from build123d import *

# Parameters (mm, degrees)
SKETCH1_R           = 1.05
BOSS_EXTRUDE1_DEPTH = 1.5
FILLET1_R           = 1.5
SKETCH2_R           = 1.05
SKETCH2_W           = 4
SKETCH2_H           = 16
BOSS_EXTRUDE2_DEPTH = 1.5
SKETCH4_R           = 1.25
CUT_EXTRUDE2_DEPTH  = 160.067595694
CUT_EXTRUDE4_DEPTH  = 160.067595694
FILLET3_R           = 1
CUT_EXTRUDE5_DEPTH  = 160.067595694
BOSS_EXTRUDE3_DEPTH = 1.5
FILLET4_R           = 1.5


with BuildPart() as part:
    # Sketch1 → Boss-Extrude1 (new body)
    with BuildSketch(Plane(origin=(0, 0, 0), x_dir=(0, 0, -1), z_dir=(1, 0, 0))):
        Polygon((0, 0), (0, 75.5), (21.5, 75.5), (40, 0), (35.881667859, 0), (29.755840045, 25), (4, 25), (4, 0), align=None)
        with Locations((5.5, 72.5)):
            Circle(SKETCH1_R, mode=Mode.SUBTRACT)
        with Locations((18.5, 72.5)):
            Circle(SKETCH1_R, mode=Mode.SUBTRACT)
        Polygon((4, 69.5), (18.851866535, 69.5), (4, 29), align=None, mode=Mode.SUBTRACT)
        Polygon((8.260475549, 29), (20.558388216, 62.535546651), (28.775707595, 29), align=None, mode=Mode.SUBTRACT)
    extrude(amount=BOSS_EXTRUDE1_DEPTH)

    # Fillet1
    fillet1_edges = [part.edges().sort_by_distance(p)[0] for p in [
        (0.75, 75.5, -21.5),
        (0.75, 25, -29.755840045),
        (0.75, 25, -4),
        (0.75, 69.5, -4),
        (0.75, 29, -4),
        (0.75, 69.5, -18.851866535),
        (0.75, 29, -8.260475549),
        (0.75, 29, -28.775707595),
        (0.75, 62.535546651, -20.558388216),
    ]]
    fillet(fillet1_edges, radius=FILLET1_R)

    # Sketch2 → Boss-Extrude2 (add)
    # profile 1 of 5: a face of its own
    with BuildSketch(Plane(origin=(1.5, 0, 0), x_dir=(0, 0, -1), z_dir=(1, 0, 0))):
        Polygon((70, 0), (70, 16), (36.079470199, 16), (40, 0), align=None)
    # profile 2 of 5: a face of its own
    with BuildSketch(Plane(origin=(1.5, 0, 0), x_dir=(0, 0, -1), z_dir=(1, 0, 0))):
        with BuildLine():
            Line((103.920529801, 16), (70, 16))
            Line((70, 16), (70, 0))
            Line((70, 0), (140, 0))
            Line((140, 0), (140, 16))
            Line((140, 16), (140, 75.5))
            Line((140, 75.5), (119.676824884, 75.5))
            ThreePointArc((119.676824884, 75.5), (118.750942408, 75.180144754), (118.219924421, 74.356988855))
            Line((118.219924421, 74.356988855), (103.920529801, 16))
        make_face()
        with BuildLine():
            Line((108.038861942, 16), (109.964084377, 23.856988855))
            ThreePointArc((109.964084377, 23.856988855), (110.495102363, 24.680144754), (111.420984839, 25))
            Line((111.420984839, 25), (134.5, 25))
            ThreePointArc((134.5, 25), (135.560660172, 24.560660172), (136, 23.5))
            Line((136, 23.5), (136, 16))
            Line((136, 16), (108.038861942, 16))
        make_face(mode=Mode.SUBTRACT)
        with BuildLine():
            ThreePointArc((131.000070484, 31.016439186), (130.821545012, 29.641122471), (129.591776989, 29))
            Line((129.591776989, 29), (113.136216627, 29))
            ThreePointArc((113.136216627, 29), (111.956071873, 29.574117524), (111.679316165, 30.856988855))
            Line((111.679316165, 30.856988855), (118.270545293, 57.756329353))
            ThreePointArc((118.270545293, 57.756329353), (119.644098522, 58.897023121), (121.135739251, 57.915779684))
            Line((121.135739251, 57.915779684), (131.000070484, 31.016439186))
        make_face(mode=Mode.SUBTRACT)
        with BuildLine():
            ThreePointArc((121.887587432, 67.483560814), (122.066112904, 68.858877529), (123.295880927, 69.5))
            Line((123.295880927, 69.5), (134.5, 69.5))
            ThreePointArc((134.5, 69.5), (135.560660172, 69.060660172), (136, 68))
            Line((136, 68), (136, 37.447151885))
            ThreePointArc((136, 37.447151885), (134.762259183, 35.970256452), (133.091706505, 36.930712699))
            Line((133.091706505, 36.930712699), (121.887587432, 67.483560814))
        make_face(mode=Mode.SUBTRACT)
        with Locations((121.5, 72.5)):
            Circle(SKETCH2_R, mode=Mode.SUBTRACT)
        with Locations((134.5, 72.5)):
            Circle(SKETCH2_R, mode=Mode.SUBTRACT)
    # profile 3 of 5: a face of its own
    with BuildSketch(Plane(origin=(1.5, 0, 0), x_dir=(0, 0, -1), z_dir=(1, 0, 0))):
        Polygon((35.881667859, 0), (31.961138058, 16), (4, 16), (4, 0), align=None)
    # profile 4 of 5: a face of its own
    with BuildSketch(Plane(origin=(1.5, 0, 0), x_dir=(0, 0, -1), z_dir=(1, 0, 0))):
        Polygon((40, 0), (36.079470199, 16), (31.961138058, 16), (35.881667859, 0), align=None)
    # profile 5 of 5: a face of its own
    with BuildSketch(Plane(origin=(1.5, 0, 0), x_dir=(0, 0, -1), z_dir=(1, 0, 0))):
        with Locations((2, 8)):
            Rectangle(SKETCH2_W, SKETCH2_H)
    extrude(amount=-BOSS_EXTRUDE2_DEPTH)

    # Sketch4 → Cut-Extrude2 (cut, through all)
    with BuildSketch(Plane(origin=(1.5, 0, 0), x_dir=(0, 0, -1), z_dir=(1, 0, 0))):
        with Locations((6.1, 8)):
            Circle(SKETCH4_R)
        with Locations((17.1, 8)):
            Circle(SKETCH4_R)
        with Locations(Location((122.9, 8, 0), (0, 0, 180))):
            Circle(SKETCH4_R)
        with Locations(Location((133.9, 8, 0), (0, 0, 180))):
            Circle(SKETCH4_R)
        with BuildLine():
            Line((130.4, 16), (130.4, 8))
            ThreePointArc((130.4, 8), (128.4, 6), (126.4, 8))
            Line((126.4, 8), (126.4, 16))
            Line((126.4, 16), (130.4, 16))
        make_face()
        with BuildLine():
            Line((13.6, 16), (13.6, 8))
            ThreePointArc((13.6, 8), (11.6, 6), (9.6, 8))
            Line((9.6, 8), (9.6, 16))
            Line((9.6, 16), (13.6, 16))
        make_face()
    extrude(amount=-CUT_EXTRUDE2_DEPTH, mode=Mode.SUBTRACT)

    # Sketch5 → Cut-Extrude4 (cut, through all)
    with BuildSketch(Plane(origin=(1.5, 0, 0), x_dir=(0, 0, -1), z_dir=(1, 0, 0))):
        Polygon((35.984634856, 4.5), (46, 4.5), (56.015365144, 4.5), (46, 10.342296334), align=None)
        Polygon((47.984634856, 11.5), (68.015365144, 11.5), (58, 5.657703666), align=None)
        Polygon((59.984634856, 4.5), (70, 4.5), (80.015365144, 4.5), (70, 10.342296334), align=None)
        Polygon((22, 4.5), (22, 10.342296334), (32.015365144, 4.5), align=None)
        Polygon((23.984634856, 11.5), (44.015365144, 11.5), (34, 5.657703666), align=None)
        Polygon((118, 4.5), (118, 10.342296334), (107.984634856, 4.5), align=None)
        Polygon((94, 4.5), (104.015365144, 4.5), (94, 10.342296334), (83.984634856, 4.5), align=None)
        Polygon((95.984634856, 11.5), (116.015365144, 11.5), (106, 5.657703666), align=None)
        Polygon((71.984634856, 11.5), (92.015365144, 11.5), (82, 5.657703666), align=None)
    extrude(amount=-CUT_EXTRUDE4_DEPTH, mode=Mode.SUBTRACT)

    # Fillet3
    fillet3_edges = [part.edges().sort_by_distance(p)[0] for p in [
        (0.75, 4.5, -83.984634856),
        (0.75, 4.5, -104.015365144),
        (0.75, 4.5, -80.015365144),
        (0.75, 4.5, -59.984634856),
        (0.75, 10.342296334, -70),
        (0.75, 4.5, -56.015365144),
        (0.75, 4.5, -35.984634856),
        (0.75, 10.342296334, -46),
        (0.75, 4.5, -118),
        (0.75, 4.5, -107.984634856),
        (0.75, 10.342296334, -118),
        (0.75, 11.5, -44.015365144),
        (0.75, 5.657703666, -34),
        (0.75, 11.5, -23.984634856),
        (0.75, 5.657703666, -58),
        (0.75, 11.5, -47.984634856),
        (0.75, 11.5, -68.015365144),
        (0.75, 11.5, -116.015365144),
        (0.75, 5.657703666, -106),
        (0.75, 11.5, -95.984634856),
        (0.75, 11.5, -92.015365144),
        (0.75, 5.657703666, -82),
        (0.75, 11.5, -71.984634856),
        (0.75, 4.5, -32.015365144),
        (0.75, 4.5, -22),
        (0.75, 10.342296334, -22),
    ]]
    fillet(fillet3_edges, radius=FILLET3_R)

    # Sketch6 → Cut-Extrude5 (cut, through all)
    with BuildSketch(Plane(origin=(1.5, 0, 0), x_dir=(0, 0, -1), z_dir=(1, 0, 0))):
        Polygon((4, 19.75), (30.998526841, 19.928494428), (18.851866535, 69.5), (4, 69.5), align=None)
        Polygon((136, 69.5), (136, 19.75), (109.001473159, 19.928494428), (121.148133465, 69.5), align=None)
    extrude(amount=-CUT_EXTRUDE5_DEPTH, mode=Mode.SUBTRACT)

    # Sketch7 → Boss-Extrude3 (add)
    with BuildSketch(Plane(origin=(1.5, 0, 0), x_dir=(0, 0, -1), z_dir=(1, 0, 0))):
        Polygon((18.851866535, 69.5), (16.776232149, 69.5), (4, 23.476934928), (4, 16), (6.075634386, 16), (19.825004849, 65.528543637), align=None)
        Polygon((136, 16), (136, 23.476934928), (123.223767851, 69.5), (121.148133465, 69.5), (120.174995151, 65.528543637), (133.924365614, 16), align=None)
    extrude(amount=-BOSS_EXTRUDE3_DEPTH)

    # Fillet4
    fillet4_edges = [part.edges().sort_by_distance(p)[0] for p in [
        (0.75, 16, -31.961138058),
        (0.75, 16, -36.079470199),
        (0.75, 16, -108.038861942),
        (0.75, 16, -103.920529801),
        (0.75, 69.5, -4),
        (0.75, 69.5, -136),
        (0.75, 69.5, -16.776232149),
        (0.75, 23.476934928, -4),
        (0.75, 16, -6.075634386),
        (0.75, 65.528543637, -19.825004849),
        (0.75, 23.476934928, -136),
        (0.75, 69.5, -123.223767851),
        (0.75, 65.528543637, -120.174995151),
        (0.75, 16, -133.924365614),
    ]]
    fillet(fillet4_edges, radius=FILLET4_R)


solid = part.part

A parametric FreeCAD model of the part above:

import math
import FreeCAD as App
import Part
import Sketcher

V = App.Vector
Q = App.Units.Quantity


def edges_at(feature, points):
    """Names of the edges that pass closest to the given points."""
    edges = feature.Shape.Edges
    near = lambda p: min(range(len(edges)), key=lambda i: edges[i].distToShape(Part.Vertex(*p))[0])
    return sorted({f"Edge{near(p) + 1}" for p in points})

doc = App.newDocument("Part")
params = doc.addObject("Spreadsheet::Sheet", "Params")
for row, (alias, value) in enumerate([
    ("sketch1_diameter", "2.1 mm"),
    ("sketch1_width", "25 mm"),
    ("sketch1_height", "4 mm"),
    ("sketch1_width2", "75.5 mm"),
    ("sketch1_width3", "40.5 mm"),
    ("pad1_length", "1.5 mm"),
    ("fillet_radius", "1.5 mm"),
    ("sketch2_diameter", "2.1 mm"),
    ("sketch2_diameter2", "2.1 mm"),
    ("sketch2_radius", "1.5 mm"),
    ("sketch2_radius2", "1.5 mm"),
    ("sketch2_radius3", "1.5 mm"),
    ("pad2_length", "1.5 mm"),
    ("sketch3_radius", "2 mm"),
    ("sketch3_diameter", "2.5 mm"),
    ("sketch3_width", "8 mm"),
    ("fillet2_radius", "1 mm"),
    ("sketch5_width", "49.75 mm"),
    ("pad3_length", "1.5 mm"),
    ("fillet3_radius", "1.5 mm"),
], start=1):
    params.set(f"A{row}", alias)
    params.set(f"B{row}", "=" + value)
    params.setAlias(f"B{row}", alias)

body = doc.addObject("PartDesign::Body", "Body")

# Sketch on YZ plane
sketch1 = body.newObject("Sketcher::SketchObject", "Sketch")
sketch1.AttachmentSupport = (doc.getObject("YZ_Plane"), [""])
sketch1.MapMode = "FlatFace"
sketch1.addGeometry(Part.LineSegment(V(75.5, 0, 0), V(0, 0, 0)), False)
sketch1.addGeometry(Part.LineSegment(V(0, 0, 0), V(0, -4, 0)), False)
sketch1.addGeometry(Part.LineSegment(V(0, -4, 0), V(25, -4, 0)), False)
sketch1.addGeometry(Part.LineSegment(V(25, -4, 0), V(25, -29.75584, 0)), False)
sketch1.addGeometry(Part.LineSegment(V(25, -29.75584, 0), V(0, -35.881668, 0)), False)
sketch1.addGeometry(Part.LineSegment(V(0, -35.881668, 0), V(0, -40, 0)), False)
sketch1.addGeometry(Part.LineSegment(V(0, -40, 0), V(75.5, -21.5, 0)), False)
sketch1.addGeometry(Part.LineSegment(V(75.5, -21.5, 0), V(75.5, 0, 0)), False)
sketch1.addGeometry(Part.LineSegment(V(29, -8.260476, 0), V(62.535547, -20.558388, 0)), False)
sketch1.addGeometry(Part.LineSegment(V(62.535547, -20.558388, 0), V(29, -28.775708, 0)), False)
sketch1.addGeometry(Part.LineSegment(V(29, -28.775708, 0), V(29, -8.260476, 0)), False)
sketch1.addGeometry(Part.LineSegment(V(69.5, -4, 0), V(69.5, -18.851867, 0)), False)
sketch1.addGeometry(Part.LineSegment(V(69.5, -18.851867, 0), V(29, -4, 0)), False)
sketch1.addGeometry(Part.LineSegment(V(29, -4, 0), V(69.5, -4, 0)), False)
sketch1.addGeometry(Part.Circle(V(72.5, -18.5, 0), V(0, 0, 1), 1.05), False)
sketch1.addGeometry(Part.Circle(V(72.5, -5.5, 0), V(0, 0, 1), 1.05), False)
sketch1.addConstraint(Sketcher.Constraint("Coincident", 0, 2, 1, 1))
sketch1.addConstraint(Sketcher.Constraint("Coincident", 1, 2, 2, 1))
sketch1.addConstraint(Sketcher.Constraint("Coincident", 2, 2, 3, 1))
sketch1.addConstraint(Sketcher.Constraint("Coincident", 3, 2, 4, 1))
sketch1.addConstraint(Sketcher.Constraint("Coincident", 4, 2, 5, 1))
sketch1.addConstraint(Sketcher.Constraint("Coincident", 5, 2, 6, 1))
sketch1.addConstraint(Sketcher.Constraint("Coincident", 6, 2, 7, 1))
sketch1.addConstraint(Sketcher.Constraint("Coincident", 7, 2, 0, 1))
sketch1.addConstraint(Sketcher.Constraint("Coincident", 8, 2, 9, 1))
sketch1.addConstraint(Sketcher.Constraint("Coincident", 9, 2, 10, 1))
sketch1.addConstraint(Sketcher.Constraint("Coincident", 10, 2, 8, 1))
sketch1.addConstraint(Sketcher.Constraint("Coincident", 11, 2, 12, 1))
sketch1.addConstraint(Sketcher.Constraint("Coincident", 12, 2, 13, 1))
sketch1.addConstraint(Sketcher.Constraint("Coincident", 13, 2, 11, 1))
sketch1.addConstraint(Sketcher.Constraint("Horizontal", 0))
sketch1.addConstraint(Sketcher.Constraint("Vertical", 1))
sketch1.addConstraint(Sketcher.Constraint("Horizontal", 2))
sketch1.addConstraint(Sketcher.Constraint("Vertical", 3))
sketch1.addConstraint(Sketcher.Constraint("Vertical", 5))
sketch1.addConstraint(Sketcher.Constraint("Vertical", 7))
sketch1.addConstraint(Sketcher.Constraint("Vertical", 10))
sketch1.addConstraint(Sketcher.Constraint("Vertical", 11))
sketch1.addConstraint(Sketcher.Constraint("Horizontal", 13))
sketch1.addConstraint(Sketcher.Constraint("Coincident", 0, 2, -1, 1))
sketch1.addConstraint(Sketcher.Constraint("Equal", 14, 15))
sketch1.addConstraint(Sketcher.Constraint("PointOnObject", 4, 2, -2))
sketch1.addConstraint(Sketcher.Constraint("Parallel", 4, 6))
sketch1.addConstraint(Sketcher.Constraint("Parallel", 6, 9))
sketch1.addConstraint(Sketcher.Constraint("Parallel", 8, 12))
sketch1.addConstraint(Sketcher.Constraint("Horizontal", 2, 2, 12, 2))
sketch1.addConstraint(Sketcher.Constraint("Vertical", 14, 3, 15, 3))
sketch1.addConstraint(Sketcher.Constraint("Vertical", 10, 2, 12, 2))
sketch1.addConstraint(Sketcher.Constraint("Diameter", 14, Q("2.1 mm")))
sketch1.addConstraint(Sketcher.Constraint("DistanceX", 2, 1, 2, 2, Q("25 mm")))
sketch1.addConstraint(Sketcher.Constraint("DistanceY", 1, 2, 1, 1, Q("4 mm")))
sketch1.addConstraint(Sketcher.Constraint("DistanceX", 0, 2, 0, 1, Q("75.5 mm")))
sketch1.addConstraint(Sketcher.Constraint("DistanceX", 13, 1, 13, 2, Q("40.5 mm")))
sketch1.addConstraint(Sketcher.Constraint("DistanceY", 7, 1, 7, 2, Q("21.5 mm")))
sketch1.addConstraint(Sketcher.Constraint("DistanceY", 5, 2, -1, 1, Q("40 mm")))
sketch1.addConstraint(Sketcher.Constraint("DistanceX", -1, 1, 9, 2, Q("29 mm")))
sketch1.addConstraint(Sketcher.Constraint("DistanceY", 14, 3, 15, 3, Q("13 mm")))
sketch1.addConstraint(Sketcher.Constraint("DistanceX", 14, 3, 6, 2, Q("3 mm")))
sketch1.addConstraint(Sketcher.Constraint("DistanceY", 6, 2, 14, 3, Q("3 mm")))
sketch1.addConstraint(Sketcher.Constraint("DistanceY", 3, 2, 3, 1, Q("25.75584 mm")))
sketch1.addConstraint(Sketcher.Constraint("Distance", 9, Q("34.52763 mm")))
sketch1.addConstraint(Sketcher.Constraint("DistanceY", 10, 1, 10, 2, Q("20.515232 mm")))
sketch1.addConstraint(Sketcher.Constraint("DistanceY", 8, 2, -1, 1, Q("20.558388 mm")))
sketch1.setExpression("Constraints[32]", "Params.sketch1_diameter")
sketch1.setExpression("Constraints[33]", "Params.sketch1_width")
sketch1.setExpression("Constraints[34]", "Params.sketch1_height")
sketch1.setExpression("Constraints[35]", "Params.sketch1_width2")
sketch1.setExpression("Constraints[36]", "Params.sketch1_width3")
pad1 = body.newObject("PartDesign::Pad", "Pad")
pad1.Profile = sketch1
pad1.setExpression("Length", "Params.pad1_length")
doc.recompute()

fillet = body.newObject("PartDesign::Fillet", "Fillet")
fillet.Base = (pad1, edges_at(pad1, [
    (0.75, 75.5, -21.5),
    (0.75, 25, -29.756),
    (0.75, 25, -4),
    (0.75, 69.5, -4),
    (0.75, 29, -4),
    (0.75, 69.5, -18.852),
    (0.75, 29, -8.26),
    (0.75, 29, -28.776),
    (0.75, 62.536, -20.558),
]))
fillet.setExpression("Radius", "Params.fillet_radius")

# Sketch on YZ plane
sketch2 = body.newObject("Sketcher::SketchObject", "Sketch001")
sketch2.AttachmentSupport = (doc.getObject("YZ_Plane"), [""])
sketch2.MapMode = "FlatFace"
sketch2.AttachmentOffset = App.Placement(V(0, 0, 1.5), App.Rotation())
sketch2.addGeometry(Part.LineSegment(V(16, 0, 0), V(0, 0, 0)), False)
sketch2.addGeometry(Part.LineSegment(V(0, 0, 0), V(0, -140, 0)), False)
sketch2.addGeometry(Part.LineSegment(V(0, -140, 0), V(75.5, -140, 0)), False)
sketch2.addGeometry(Part.LineSegment(V(75.5, -140, 0), V(75.5, -119.676825, 0)), False)
sketch2.addGeometry(Part.ArcOfCircle(Part.Circle(V(74, -119.676825, 0), V(0, 0, 1), 1.5), math.radians(0), math.radians(76.231909)), False)
sketch2.addGeometry(Part.LineSegment(V(74.356989, -118.219924, 0), V(16, -103.92053, 0)), False)
sketch2.addGeometry(Part.LineSegment(V(16, -103.92053, 0), V(16, 0, 0)), False)
sketch2.addGeometry(Part.Circle(V(72.5, -134.5, 0), V(0, 0, 1), 1.05), False)
sketch2.addGeometry(Part.LineSegment(V(57.91578, -121.135739, 0), V(31.016439, -131.00007, 0)), False)
sketch2.addGeometry(Part.ArcOfCircle(Part.Circle(V(30.5, -129.591777, 0), V(0, 0, 1), 1.5), math.radians(180), math.radians(290.138631)), False)
sketch2.addGeometry(Part.LineSegment(V(29, -129.591777, 0), V(29, -113.136217, 0)), False)
sketch2.addGeometry(Part.ArcOfCircle(Part.Circle(V(30.5, -113.136217, 0), V(0, 0, 1), 1.5), math.radians(76.23191), math.radians(180)), False)
sketch2.addGeometry(Part.LineSegment(V(30.856989, -111.679316, 0), V(57.756329, -118.270545, 0)), False)
sketch2.addGeometry(Part.ArcOfCircle(Part.Circle(V(57.39934, -119.727446, 0), V(0, 0, 1), 1.5), math.radians(-69.861369), math.radians(76.23191)), False)
sketch2.addGeometry(Part.LineSegment(V(16, -136, 0), V(16, -108.038862, 0)), False)
sketch2.addGeometry(Part.LineSegment(V(16, -108.038862, 0), V(23.856989, -109.964084, 0)), False)
sketch2.addGeometry(Part.ArcOfCircle(Part.Circle(V(23.5, -111.420985, 0), V(0, 0, 1), 1.5), math.radians(0), math.radians(76.23191)), False)
sketch2.addGeometry(Part.LineSegment(V(25, -111.420985, 0), V(25, -134.5, 0)), False)
sketch2.addGeometry(Part.ArcOfCircle(Part.Circle(V(23.5, -134.5, 0), V(0, 0, 1), 1.5), math.radians(-90), math.radians(0)), False)
sketch2.addGeometry(Part.LineSegment(V(23.5, -136, 0), V(16, -136, 0)), False)
sketch2.addGeometry(Part.Circle(V(72.5, -121.5, 0), V(0, 0, 1), 1.05), False)
sketch2.addGeometry(Part.LineSegment(V(36.930713, -133.091707, 0), V(67.483561, -121.887587, 0)), False)
sketch2.addGeometry(Part.ArcOfCircle(Part.Circle(V(68, -123.295881, 0), V(0, 0, 1), 1.5), math.radians(0), math.radians(110.138631)), False)
sketch2.addGeometry(Part.LineSegment(V(69.5, -123.295881, 0), V(69.5, -134.5, 0)), False)
sketch2.addGeometry(Part.ArcOfCircle(Part.Circle(V(68, -134.5, 0), V(0, 0, 1), 1.5), math.radians(-90), math.radians(0)), False)
sketch2.addGeometry(Part.LineSegment(V(68, -136, 0), V(37.447152, -136, 0)), False)
sketch2.addGeometry(Part.ArcOfCircle(Part.Circle(V(37.447152, -134.5, 0), V(0, 0, 1), 1.5), math.radians(110.138631), math.radians(270)), False)
sketch2.addConstraint(Sketcher.Constraint("Coincident", 0, 2, 1, 1))
sketch2.addConstraint(Sketcher.Constraint("Coincident", 1, 2, 2, 1))
sketch2.addConstraint(Sketcher.Constraint("Coincident", 2, 2, 3, 1))
sketch2.addConstraint(Sketcher.Constraint("Coincident", 3, 2, 4, 1))
sketch2.addConstraint(Sketcher.Constraint("Coincident", 4, 2, 5, 1))
sketch2.addConstraint(Sketcher.Constraint("Coincident", 5, 2, 6, 1))
sketch2.addConstraint(Sketcher.Constraint("Coincident", 6, 2, 0, 1))
sketch2.addConstraint(Sketcher.Constraint("Coincident", 8, 2, 9, 2))
sketch2.addConstraint(Sketcher.Constraint("Coincident", 9, 1, 10, 1))
sketch2.addConstraint(Sketcher.Constraint("Coincident", 10, 2, 11, 2))
sketch2.addConstraint(Sketcher.Constraint("Coincident", 11, 1, 12, 1))
sketch2.addConstraint(Sketcher.Constraint("Coincident", 12, 2, 13, 2))
sketch2.addConstraint(Sketcher.Constraint("Coincident", 13, 1, 8, 1))
sketch2.addConstraint(Sketcher.Constraint("Coincident", 14, 2, 15, 1))
sketch2.addConstraint(Sketcher.Constraint("Coincident", 15, 2, 16, 2))
sketch2.addConstraint(Sketcher.Constraint("Coincident", 16, 1, 17, 1))
sketch2.addConstraint(Sketcher.Constraint("Coincident", 17, 2, 18, 2))
sketch2.addConstraint(Sketcher.Constraint("Coincident", 18, 1, 19, 1))
sketch2.addConstraint(Sketcher.Constraint("Coincident", 19, 2, 14, 1))
sketch2.addConstraint(Sketcher.Constraint("Coincident", 21, 2, 22, 2))
sketch2.addConstraint(Sketcher.Constraint("Coincident", 22, 1, 23, 1))
sketch2.addConstraint(Sketcher.Constraint("Coincident", 23, 2, 24, 2))
sketch2.addConstraint(Sketcher.Constraint("Coincident", 24, 1, 25, 1))
sketch2.addConstraint(Sketcher.Constraint("Coincident", 25, 2, 26, 2))
sketch2.addConstraint(Sketcher.Constraint("Coincident", 26, 1, 21, 1))
sketch2.addConstraint(Sketcher.Constraint("Horizontal", 0))
sketch2.addConstraint(Sketcher.Constraint("Vertical", 1))
sketch2.addConstraint(Sketcher.Constraint("Horizontal", 2))
sketch2.addConstraint(Sketcher.Constraint("Vertical", 3))
sketch2.addConstraint(Sketcher.Constraint("Vertical", 6))
sketch2.addConstraint(Sketcher.Constraint("Vertical", 10))
sketch2.addConstraint(Sketcher.Constraint("Vertical", 14))
sketch2.addConstraint(Sketcher.Constraint("Vertical", 17))
sketch2.addConstraint(Sketcher.Constraint("Horizontal", 19))
sketch2.addConstraint(Sketcher.Constraint("Vertical", 23))
sketch2.addConstraint(Sketcher.Constraint("Horizontal", 25))
sketch2.addConstraint(Sketcher.Constraint("Coincident", 0, 2, -1, 1))
sketch2.addConstraint(Sketcher.Constraint("Diameter", 7, Q("2.1 mm")))
sketch2.addConstraint(Sketcher.Constraint("Diameter", 20, Q("2.1 mm")))
sketch2.addConstraint(Sketcher.Constraint("Radius", 4, Q("1.5 mm")))
sketch2.addConstraint(Sketcher.Constraint("Radius", 9, Q("1.5 mm")))
sketch2.addConstraint(Sketcher.Constraint("Radius", 11, Q("1.5 mm")))
sketch2.addConstraint(Sketcher.Constraint("Radius", 13, Q("1.5 mm")))
sketch2.addConstraint(Sketcher.Constraint("Radius", 16, Q("1.5 mm")))
sketch2.addConstraint(Sketcher.Constraint("Radius", 18, Q("1.5 mm")))
sketch2.addConstraint(Sketcher.Constraint("Radius", 22, Q("1.5 mm")))
sketch2.addConstraint(Sketcher.Constraint("Radius", 24, Q("1.5 mm")))
sketch2.addConstraint(Sketcher.Constraint("Radius", 26, Q("1.5 mm")))
sketch2.addConstraint(Sketcher.Constraint("DistanceX", 0, 2, 0, 1, Q("16 mm")))
sketch2.addConstraint(Sketcher.Constraint("DistanceY", 1, 2, 1, 1, Q("140 mm")))
sketch2.addConstraint(Sketcher.Constraint("DistanceX", 2, 1, 2, 2, Q("75.5 mm")))
sketch2.addConstraint(Sketcher.Constraint("DistanceX", 19, 2, 19, 1, Q("7.5 mm")))
sketch2.addConstraint(Sketcher.Constraint("DistanceX", -1, 1, 22, 3, Q("68 mm")))
sketch2.addConstraint(Sketcher.Constraint("DistanceX", -1, 1, 9, 1, Q("29 mm")))
sketch2.addConstraint(Sketcher.Constraint("DistanceX", -1, 1, 14, 2, Q("16 mm")))
sketch2.addConstraint(Sketcher.Constraint("DistanceX", -1, 1, 16, 1, Q("25 mm")))
sketch2.addConstraint(Sketcher.Constraint("DistanceY", 18, 1, -1, 1, Q("136 mm")))
sketch2.addConstraint(Sketcher.Constraint("DistanceX", -1, 1, 24, 1, Q("68 mm")))
sketch2.addConstraint(Sketcher.Constraint("DistanceY", 24, 1, -1, 1, Q("136 mm")))
sketch2.addConstraint(Sketcher.Constraint("DistanceX", 9, 3, 7, 3, Q("42 mm")))
sketch2.addConstraint(Sketcher.Constraint("DistanceY", 7, 3, 20, 3, Q("13 mm")))
sketch2.addConstraint(Sketcher.Constraint("DistanceX", 9, 3, 20, 3, Q("42 mm")))
sketch2.addConstraint(Sketcher.Constraint("DistanceY", 24, 3, 20, 3, Q("13 mm")))
sketch2.addConstraint(Sketcher.Constraint("DistanceX", 15, 2, 11, 1, Q("7 mm")))
sketch2.addConstraint(Sketcher.Constraint("DistanceY", 17, 2, -1, 1, Q("134.5 mm")))
sketch2.addConstraint(Sketcher.Constraint("DistanceY", 23, 2, -1, 1, Q("134.5 mm")))
sketch2.addConstraint(Sketcher.Constraint("DistanceX", 25, 2, 25, 1, Q("30.552848 mm")))
sketch2.addConstraint(Sketcher.Constraint("DistanceY", 6, 1, 6, 2, Q("103.92053 mm")))
sketch2.addConstraint(Sketcher.Constraint("DistanceY", 10, 1, 10, 2, Q("16.45556 mm")))
sketch2.addConstraint(Sketcher.Constraint("DistanceY", 14, 1, 14, 2, Q("27.961138 mm")))
sketch2.addConstraint(Sketcher.Constraint("DistanceY", 23, 2, 23, 1, Q("11.204119 mm")))
sketch2.addConstraint(Sketcher.Constraint("DistanceY", 4, 3, 4, 2, Q("1.4569 mm")))
sketch2.addConstraint(Sketcher.Constraint("DistanceY", 3, 2, 4, 2, Q("1.4569 mm")))
sketch2.addConstraint(Sketcher.Constraint("DistanceY", 11, 3, 11, 1, Q("1.4569 mm")))
sketch2.addConstraint(Sketcher.Constraint("DistanceY", 10, 2, 11, 1, Q("1.4569 mm")))
sketch2.addConstraint(Sketcher.Constraint("DistanceY", 13, 3, 12, 2, Q("1.4569 mm")))
sketch2.addConstraint(Sketcher.Constraint("DistanceY", 16, 1, 15, 2, Q("1.4569 mm")))
sketch2.addConstraint(Sketcher.Constraint("DistanceY", 3, 1, 3, 2, Q("20.323175 mm")))
sketch2.addConstraint(Sketcher.Constraint("DistanceY", 17, 2, 17, 1, Q("23.079015 mm")))
sketch2.addConstraint(Sketcher.Constraint("DistanceX", -1, 1, 13, 3, Q("57.39934 mm")))
sketch2.addConstraint(Sketcher.Constraint("DistanceY", 22, 3, -1, 1, Q("123.295881 mm")))
sketch2.addConstraint(Sketcher.Constraint("DistanceX", -1, 1, 26, 3, Q("37.447152 mm")))
sketch2.addConstraint(Sketcher.Constraint("DistanceX", -1, 1, 8, 2, Q("31.016439 mm")))
sketch2.addConstraint(Sketcher.Constraint("DistanceY", 8, 2, -1, 1, Q("131.00007 mm")))
sketch2.addConstraint(Sketcher.Constraint("DistanceX", -1, 1, 13, 1, Q("57.91578 mm")))
sketch2.addConstraint(Sketcher.Constraint("DistanceY", 13, 1, -1, 1, Q("121.135739 mm")))
sketch2.addConstraint(Sketcher.Constraint("DistanceX", -1, 1, 21, 2, Q("67.483561 mm")))
sketch2.addConstraint(Sketcher.Constraint("DistanceY", 9, 3, 11, 3, Q("16.45556 mm")))
sketch2.addConstraint(Sketcher.Constraint("DistanceX", 26, 1, 26, 3, Q("0.516439 mm")))
sketch2.setExpression("Constraints[37]", "Params.sketch2_diameter")
sketch2.setExpression("Constraints[38]", "Params.sketch2_diameter2")
sketch2.setExpression("Constraints[39]", "Params.sketch2_radius")
sketch2.setExpression("Constraints[40]", "Params.sketch2_radius2")
sketch2.setExpression("Constraints[41]", "Params.sketch2_radius3")
pad2 = body.newObject("PartDesign::Pad", "Pad001")
pad2.Profile = sketch2
pad2.setExpression("Length", "Params.pad2_length")
pad2.Reversed = True

# Sketch on YZ plane
sketch3 = body.newObject("Sketcher::SketchObject", "Sketch002")
sketch3.AttachmentSupport = (doc.getObject("YZ_Plane"), [""])
sketch3.MapMode = "FlatFace"
sketch3.AttachmentOffset = App.Placement(V(0, 0, 1.5), App.Rotation())
sketch3.addGeometry(Part.Circle(V(8, -6.1, 0), V(0, 0, 1), 1.25), False)
sketch3.addGeometry(Part.Circle(V(8, -17.1, 0), V(0, 0, 1), 1.25), False)
sketch3.addGeometry(Part.Circle(V(8, -122.9, 0), V(0, 0, 1), 1.25), False)
sketch3.addGeometry(Part.Circle(V(8, -133.9, 0), V(0, 0, 1), 1.25), False)
sketch3.addGeometry(Part.LineSegment(V(8, -130.4, 0), V(16, -130.4, 0)), False)
sketch3.addGeometry(Part.LineSegment(V(16, -130.4, 0), V(16, -126.4, 0)), False)
sketch3.addGeometry(Part.LineSegment(V(16, -126.4, 0), V(8, -126.4, 0)), False)
sketch3.addGeometry(Part.ArcOfCircle(Part.Circle(V(8, -128.4, 0), V(0, 0, 1), 2), math.radians(90), math.radians(270)), False)
sketch3.addGeometry(Part.LineSegment(V(8, -13.6, 0), V(16, -13.6, 0)), False)
sketch3.addGeometry(Part.LineSegment(V(16, -13.6, 0), V(16, -9.6, 0)), False)
sketch3.addGeometry(Part.LineSegment(V(16, -9.6, 0), V(8, -9.6, 0)), False)
sketch3.addGeometry(Part.ArcOfCircle(Part.Circle(V(8, -11.6, 0), V(0, 0, 1), 2), math.radians(90), math.radians(270)), False)
sketch3.addConstraint(Sketcher.Constraint("Coincident", 4, 2, 5, 1))
sketch3.addConstraint(Sketcher.Constraint("Coincident", 5, 2, 6, 1))
sketch3.addConstraint(Sketcher.Constraint("Tangent", 6, 2, 7, 1))
sketch3.addConstraint(Sketcher.Constraint("Tangent", 7, 2, 4, 1))
sketch3.addConstraint(Sketcher.Constraint("Coincident", 8, 2, 9, 1))
sketch3.addConstraint(Sketcher.Constraint("Coincident", 9, 2, 10, 1))
sketch3.addConstraint(Sketcher.Constraint("Tangent", 10, 2, 11, 1))
sketch3.addConstraint(Sketcher.Constraint("Tangent", 11, 2, 8, 1))
sketch3.addConstraint(Sketcher.Constraint("Horizontal", 4))
sketch3.addConstraint(Sketcher.Constraint("Vertical", 5))
sketch3.addConstraint(Sketcher.Constraint("Horizontal", 6))
sketch3.addConstraint(Sketcher.Constraint("Horizontal", 8))
sketch3.addConstraint(Sketcher.Constraint("Vertical", 9))
sketch3.addConstraint(Sketcher.Constraint("Horizontal", 10))
sketch3.addConstraint(Sketcher.Constraint("Equal", 0, 1))
sketch3.addConstraint(Sketcher.Constraint("Equal", 1, 2))
sketch3.addConstraint(Sketcher.Constraint("Equal", 2, 3))
sketch3.addConstraint(Sketcher.Constraint("Equal", 7, 11))
sketch3.addConstraint(Sketcher.Constraint("Vertical", 0, 3, 1, 3))
sketch3.addConstraint(Sketcher.Constraint("Vertical", 1, 3, 2, 3))
sketch3.addConstraint(Sketcher.Constraint("Vertical", 2, 3, 3, 3))
sketch3.addConstraint(Sketcher.Constraint("Vertical", 3, 3, 7, 3))
sketch3.addConstraint(Sketcher.Constraint("Vertical", 7, 3, 11, 3))
sketch3.addConstraint(Sketcher.Constraint("Vertical", 5, 2, 8, 2))
sketch3.addConstraint(Sketcher.Constraint("Radius", 7, Q("2 mm")))
sketch3.addConstraint(Sketcher.Constraint("Diameter", 0, Q("2.5 mm")))
sketch3.addConstraint(Sketcher.Constraint("DistanceX", 4, 1, 4, 2, Q("8 mm")))
sketch3.addConstraint(Sketcher.Constraint("DistanceX", -1, 1, 0, 3, Q("8 mm")))
sketch3.addConstraint(Sketcher.Constraint("DistanceY", 1, 3, 0, 3, Q("11 mm")))
sketch3.addConstraint(Sketcher.Constraint("DistanceY", 3, 3, 2, 3, Q("11 mm")))
sketch3.addConstraint(Sketcher.Constraint("DistanceY", 0, 3, -1, 1, Q("6.1 mm")))
sketch3.addConstraint(Sketcher.Constraint("DistanceY", 2, 3, -1, 1, Q("122.9 mm")))
sketch3.addConstraint(Sketcher.Constraint("DistanceY", 7, 3, -1, 1, Q("128.4 mm")))
sketch3.addConstraint(Sketcher.Constraint("DistanceY", 11, 3, -1, 1, Q("11.6 mm")))
sketch3.setExpression("Constraints[24]", "Params.sketch3_radius")
sketch3.setExpression("Constraints[25]", "Params.sketch3_diameter")
sketch3.setExpression("Constraints[26]", "Params.sketch3_width")
pocket1 = body.newObject("PartDesign::Pocket", "Pocket")
pocket1.Profile = sketch3
pocket1.Type = "ThroughAll"

# Sketch on YZ plane
sketch4 = body.newObject("Sketcher::SketchObject", "Sketch003")
sketch4.AttachmentSupport = (doc.getObject("YZ_Plane"), [""])
sketch4.MapMode = "FlatFace"
sketch4.AttachmentOffset = App.Placement(V(0, 0, 1.5), App.Rotation())
sketch4.addGeometry(Part.LineSegment(V(4.5, -35.984635, 0), V(4.5, -56.015365, 0)), False)
sketch4.addGeometry(Part.LineSegment(V(4.5, -56.015365, 0), V(10.342296, -46, 0)), False)
sketch4.addGeometry(Part.LineSegment(V(10.342296, -46, 0), V(4.5, -35.984635, 0)), False)
sketch4.addGeometry(Part.LineSegment(V(11.5, -68.015365, 0), V(11.5, -47.984635, 0)), False)
sketch4.addGeometry(Part.LineSegment(V(11.5, -47.984635, 0), V(5.657704, -58, 0)), False)
sketch4.addGeometry(Part.LineSegment(V(5.657704, -58, 0), V(11.5, -68.015365, 0)), False)
sketch4.addGeometry(Part.LineSegment(V(4.5, -59.984635, 0), V(4.5, -80.015365, 0)), False)
sketch4.addGeometry(Part.LineSegment(V(4.5, -80.015365, 0), V(10.342296, -70, 0)), False)
sketch4.addGeometry(Part.LineSegment(V(10.342296, -70, 0), V(4.5, -59.984635, 0)), False)
sketch4.addGeometry(Part.LineSegment(V(10.342296, -22, 0), V(4.5, -22, 0)), False)
sketch4.addGeometry(Part.LineSegment(V(4.5, -22, 0), V(4.5, -32.015365, 0)), False)
sketch4.addGeometry(Part.LineSegment(V(4.5, -32.015365, 0), V(10.342296, -22, 0)), False)
sketch4.addGeometry(Part.LineSegment(V(11.5, -44.015365, 0), V(11.5, -23.984635, 0)), False)
sketch4.addGeometry(Part.LineSegment(V(11.5, -23.984635, 0), V(5.657704, -34, 0)), False)
sketch4.addGeometry(Part.LineSegment(V(5.657704, -34, 0), V(11.5, -44.015365, 0)), False)
sketch4.addGeometry(Part.LineSegment(V(4.5, -118, 0), V(10.342296, -118, 0)), False)
sketch4.addGeometry(Part.LineSegment(V(10.342296, -118, 0), V(4.5, -107.984635, 0)), False)
sketch4.addGeometry(Part.LineSegment(V(4.5, -107.984635, 0), V(4.5, -118, 0)), False)
sketch4.addGeometry(Part.LineSegment(V(4.5, -104.015365, 0), V(10.342296, -94, 0)), False)
sketch4.addGeometry(Part.LineSegment(V(10.342296, -94, 0), V(4.5, -83.984635, 0)), False)
sketch4.addGeometry(Part.LineSegment(V(4.5, -83.984635, 0), V(4.5, -104.015365, 0)), False)
sketch4.addGeometry(Part.LineSegment(V(11.5, -116.015365, 0), V(11.5, -95.984635, 0)), False)
sketch4.addGeometry(Part.LineSegment(V(11.5, -95.984635, 0), V(5.657704, -106, 0)), False)
sketch4.addGeometry(Part.LineSegment(V(5.657704, -106, 0), V(11.5, -116.015365, 0)), False)
sketch4.addGeometry(Part.LineSegment(V(11.5, -92.015365, 0), V(11.5, -71.984635, 0)), False)
sketch4.addGeometry(Part.LineSegment(V(11.5, -71.984635, 0), V(5.657704, -82, 0)), False)
sketch4.addGeometry(Part.LineSegment(V(5.657704, -82, 0), V(11.5, -92.015365, 0)), False)
sketch4.addConstraint(Sketcher.Constraint("Coincident", 0, 2, 1, 1))
sketch4.addConstraint(Sketcher.Constraint("Coincident", 1, 2, 2, 1))
sketch4.addConstraint(Sketcher.Constraint("Coincident", 2, 2, 0, 1))
sketch4.addConstraint(Sketcher.Constraint("Coincident", 3, 2, 4, 1))
sketch4.addConstraint(Sketcher.Constraint("Coincident", 4, 2, 5, 1))
sketch4.addConstraint(Sketcher.Constraint("Coincident", 5, 2, 3, 1))
sketch4.addConstraint(Sketcher.Constraint("Coincident", 6, 2, 7, 1))
sketch4.addConstraint(Sketcher.Constraint("Coincident", 7, 2, 8, 1))
sketch4.addConstraint(Sketcher.Constraint("Coincident", 8, 2, 6, 1))
sketch4.addConstraint(Sketcher.Constraint("Coincident", 9, 2, 10, 1))
sketch4.addConstraint(Sketcher.Constraint("Coincident", 10, 2, 11, 1))
sketch4.addConstraint(Sketcher.Constraint("Coincident", 11, 2, 9, 1))
sketch4.addConstraint(Sketcher.Constraint("Coincident", 12, 2, 13, 1))
sketch4.addConstraint(Sketcher.Constraint("Coincident", 13, 2, 14, 1))
sketch4.addConstraint(Sketcher.Constraint("Coincident", 14, 2, 12, 1))
sketch4.addConstraint(Sketcher.Constraint("Coincident", 15, 2, 16, 1))
sketch4.addConstraint(Sketcher.Constraint("Coincident", 16, 2, 17, 1))
sketch4.addConstraint(Sketcher.Constraint("Coincident", 17, 2, 15, 1))
sketch4.addConstraint(Sketcher.Constraint("Coincident", 18, 2, 19, 1))
sketch4.addConstraint(Sketcher.Constraint("Coincident", 19, 2, 20, 1))
sketch4.addConstraint(Sketcher.Constraint("Coincident", 20, 2, 18, 1))
sketch4.addConstraint(Sketcher.Constraint("Coincident", 21, 2, 22, 1))
sketch4.addConstraint(Sketcher.Constraint("Coincident", 22, 2, 23, 1))
sketch4.addConstraint(Sketcher.Constraint("Coincident", 23, 2, 21, 1))
sketch4.addConstraint(Sketcher.Constraint("Coincident", 24, 2, 25, 1))
sketch4.addConstraint(Sketcher.Constraint("Coincident", 25, 2, 26, 1))
sketch4.addConstraint(Sketcher.Constraint("Coincident", 26, 2, 24, 1))
sketch4.addConstraint(Sketcher.Constraint("Vertical", 0))
sketch4.addConstraint(Sketcher.Constraint("Vertical", 3))
sketch4.addConstraint(Sketcher.Constraint("Vertical", 6))
sketch4.addConstraint(Sketcher.Constraint("Horizontal", 9))
sketch4.addConstraint(Sketcher.Constraint("Vertical", 10))
sketch4.addConstraint(Sketcher.Constraint("Vertical", 12))
sketch4.addConstraint(Sketcher.Constraint("Horizontal", 15))
sketch4.addConstraint(Sketcher.Constraint("Vertical", 17))
sketch4.addConstraint(Sketcher.Constraint("Vertical", 20))
sketch4.addConstraint(Sketcher.Constraint("Vertical", 21))
sketch4.addConstraint(Sketcher.Constraint("Vertical", 24))
sketch4.addConstraint(Sketcher.Constraint("Parallel", 1, 4))
sketch4.addConstraint(Sketcher.Constraint("Parallel", 2, 5))
sketch4.addConstraint(Sketcher.Constraint("Parallel", 4, 7))
sketch4.addConstraint(Sketcher.Constraint("Parallel", 5, 8))
sketch4.addConstraint(Sketcher.Constraint("Parallel", 7, 11))
sketch4.addConstraint(Sketcher.Constraint("Parallel", 11, 13))
sketch4.addConstraint(Sketcher.Constraint("Parallel", 8, 14))
sketch4.addConstraint(Sketcher.Constraint("Parallel", 14, 16))
sketch4.addConstraint(Sketcher.Constraint("Parallel", 13, 18))
sketch4.addConstraint(Sketcher.Constraint("Parallel", 16, 19))
sketch4.addConstraint(Sketcher.Constraint("Parallel", 18, 22))
sketch4.addConstraint(Sketcher.Constraint("Parallel", 19, 23))
sketch4.addConstraint(Sketcher.Constraint("Parallel", 22, 25))
sketch4.addConstraint(Sketcher.Constraint("Parallel", 23, 26))
sketch4.addConstraint(Sketcher.Constraint("Vertical", 2, 2, 6, 2))
sketch4.addConstraint(Sketcher.Constraint("Vertical", 1, 2, 7, 2))
sketch4.addConstraint(Sketcher.Constraint("Vertical", 8, 2, 9, 2))
sketch4.addConstraint(Sketcher.Constraint("Vertical", 7, 2, 11, 2))
sketch4.addConstraint(Sketcher.Constraint("Vertical", 5, 2, 12, 2))
sketch4.addConstraint(Sketcher.Constraint("Vertical", 4, 2, 13, 2))
sketch4.addConstraint(Sketcher.Constraint("Vertical", 11, 2, 15, 2))
sketch4.addConstraint(Sketcher.Constraint("Vertical", 10, 2, 16, 2))
sketch4.addConstraint(Sketcher.Constraint("Vertical", 15, 2, 18, 2))
sketch4.addConstraint(Sketcher.Constraint("Vertical", 17, 2, 19, 2))
sketch4.addConstraint(Sketcher.Constraint("Vertical", 14, 2, 21, 2))
sketch4.addConstraint(Sketcher.Constraint("Vertical", 13, 2, 22, 2))
sketch4.addConstraint(Sketcher.Constraint("Vertical", 23, 2, 24, 2))
sketch4.addConstraint(Sketcher.Constraint("Vertical", 22, 2, 25, 2))
sketch4.addConstraint(Sketcher.Constraint("Equal", 0, 3))
sketch4.addConstraint(Sketcher.Constraint("Equal", 10, 17))
sketch4.addConstraint(Sketcher.Constraint("DistanceY", 1, 2, -1, 1, Q("46 mm")))
sketch4.addConstraint(Sketcher.Constraint("DistanceY", 4, 2, -1, 1, Q("58 mm")))
sketch4.addConstraint(Sketcher.Constraint("DistanceY", 7, 2, -1, 1, Q("70 mm")))
sketch4.addConstraint(Sketcher.Constraint("DistanceY", 9, 2, -1, 1, Q("22 mm")))
sketch4.addConstraint(Sketcher.Constraint("DistanceY", 13, 2, -1, 1, Q("34 mm")))
sketch4.addConstraint(Sketcher.Constraint("DistanceY", 15, 2, -1, 1, Q("118 mm")))
sketch4.addConstraint(Sketcher.Constraint("DistanceY", 18, 2, -1, 1, Q("94 mm")))
sketch4.addConstraint(Sketcher.Constraint("DistanceY", 22, 2, -1, 1, Q("106 mm")))
sketch4.addConstraint(Sketcher.Constraint("DistanceY", 25, 2, -1, 1, Q("82 mm")))
sketch4.addConstraint(Sketcher.Constraint("DistanceX", 0, 2, 3, 2, Q("7 mm")))
sketch4.addConstraint(Sketcher.Constraint("DistanceX", -1, 1, 0, 2, Q("4.5 mm")))
sketch4.addConstraint(Sketcher.Constraint("DistanceY", 0, 2, 0, 1, Q("20.03073 mm")))
sketch4.addConstraint(Sketcher.Constraint("DistanceX", 9, 2, 9, 1, Q("5.842296 mm")))
pocket2 = body.newObject("PartDesign::Pocket", "Pocket001")
pocket2.Profile = sketch4
pocket2.Type = "ThroughAll"
doc.recompute()

fillet2 = body.newObject("PartDesign::Fillet", "Fillet001")
fillet2.Base = (pocket2, edges_at(pocket2, [
    (0.75, 4.5, -83.985),
    (0.75, 4.5, -104.015),
    (0.75, 4.5, -80.015),
    (0.75, 4.5, -59.985),
    (0.75, 10.342, -70),
    (0.75, 4.5, -56.015),
    (0.75, 4.5, -35.985),
    (0.75, 10.342, -46),
    (0.75, 4.5, -118),
    (0.75, 4.5, -107.985),
    (0.75, 10.342, -118),
    (0.75, 11.5, -44.015),
    (0.75, 5.658, -34),
    (0.75, 11.5, -23.985),
    (0.75, 5.658, -58),
    (0.75, 11.5, -47.985),
    (0.75, 11.5, -68.015),
    (0.75, 11.5, -116.015),
    (0.75, 5.658, -106),
    (0.75, 11.5, -95.985),
    (0.75, 11.5, -92.015),
    (0.75, 5.658, -82),
    (0.75, 11.5, -71.985),
    (0.75, 4.5, -32.015),
    (0.75, 4.5, -22),
    (0.75, 10.342, -22),
]))
fillet2.setExpression("Radius", "Params.fillet2_radius")

# Sketch on YZ plane
sketch5 = body.newObject("Sketcher::SketchObject", "Sketch004")
sketch5.AttachmentSupport = (doc.getObject("YZ_Plane"), [""])
sketch5.MapMode = "FlatFace"
sketch5.AttachmentOffset = App.Placement(V(0, 0, 1.5), App.Rotation())
sketch5.addGeometry(Part.LineSegment(V(19.75, -4, 0), V(19.928494, -30.998527, 0)), False)
sketch5.addGeometry(Part.LineSegment(V(19.928494, -30.998527, 0), V(69.5, -18.851867, 0)), False)
sketch5.addGeometry(Part.LineSegment(V(69.5, -18.851867, 0), V(69.5, -4, 0)), False)
sketch5.addGeometry(Part.LineSegment(V(69.5, -4, 0), V(19.75, -4, 0)), False)
sketch5.addGeometry(Part.LineSegment(V(19.75, -136, 0), V(69.5, -136, 0)), False)
sketch5.addGeometry(Part.LineSegment(V(69.5, -136, 0), V(69.5, -121.148133, 0)), False)
sketch5.addGeometry(Part.LineSegment(V(69.5, -121.148133, 0), V(19.928494, -109.001473, 0)), False)
sketch5.addGeometry(Part.LineSegment(V(19.928494, -109.001473, 0), V(19.75, -136, 0)), False)
sketch5.addConstraint(Sketcher.Constraint("Coincident", 0, 2, 1, 1))
sketch5.addConstraint(Sketcher.Constraint("Coincident", 1, 2, 2, 1))
sketch5.addConstraint(Sketcher.Constraint("Coincident", 2, 2, 3, 1))
sketch5.addConstraint(Sketcher.Constraint("Coincident", 3, 2, 0, 1))
sketch5.addConstraint(Sketcher.Constraint("Coincident", 4, 2, 5, 1))
sketch5.addConstraint(Sketcher.Constraint("Coincident", 5, 2, 6, 1))
sketch5.addConstraint(Sketcher.Constraint("Coincident", 6, 2, 7, 1))
sketch5.addConstraint(Sketcher.Constraint("Coincident", 7, 2, 4, 1))
sketch5.addConstraint(Sketcher.Constraint("Vertical", 2))
sketch5.addConstraint(Sketcher.Constraint("Horizontal", 3))
sketch5.addConstraint(Sketcher.Constraint("Horizontal", 4))
sketch5.addConstraint(Sketcher.Constraint("Vertical", 5))
sketch5.addConstraint(Sketcher.Constraint("Vertical", 2, 2, 4, 2))
sketch5.addConstraint(Sketcher.Constraint("Vertical", 0, 2, 6, 2))
sketch5.addConstraint(Sketcher.Constraint("Vertical", 3, 2, 7, 2))
sketch5.addConstraint(Sketcher.Constraint("Equal", 2, 5))
sketch5.addConstraint(Sketcher.Constraint("Equal", 1, 6))
sketch5.addConstraint(Sketcher.Constraint("DistanceY", 2, 2, -1, 1, Q("4 mm")))
sketch5.addConstraint(Sketcher.Constraint("DistanceY", 4, 2, -1, 1, Q("136 mm")))
sketch5.addConstraint(Sketcher.Constraint("DistanceX", 3, 2, 3, 1, Q("49.75 mm")))
sketch5.addConstraint(Sketcher.Constraint("DistanceX", -1, 1, 1, 2, Q("69.5 mm")))
sketch5.addConstraint(Sketcher.Constraint("Distance", 1, Q("51.037981 mm")))
sketch5.addConstraint(Sketcher.Constraint("DistanceY", 2, 1, 2, 2, Q("14.851867 mm")))
sketch5.addConstraint(Sketcher.Constraint("DistanceY", 0, 2, 1, 2, Q("12.14666 mm")))
sketch5.setExpression("Constraints[19]", "Params.sketch5_width")
pocket3 = body.newObject("PartDesign::Pocket", "Pocket002")
pocket3.Profile = sketch5
pocket3.Type = "ThroughAll"

# Sketch on YZ plane
sketch6 = body.newObject("Sketcher::SketchObject", "Sketch005")
sketch6.AttachmentSupport = (doc.getObject("YZ_Plane"), [""])
sketch6.MapMode = "FlatFace"
sketch6.AttachmentOffset = App.Placement(V(0, 0, 1.5), App.Rotation())
sketch6.addGeometry(Part.LineSegment(V(69.5, -18.851867, 0), V(69.5, -16.776232, 0)), False)
sketch6.addGeometry(Part.LineSegment(V(69.5, -16.776232, 0), V(23.476935, -4, 0)), False)
sketch6.addGeometry(Part.LineSegment(V(23.476935, -4, 0), V(16, -4, 0)), False)
sketch6.addGeometry(Part.LineSegment(V(16, -4, 0), V(16, -6.075634, 0)), False)
sketch6.addGeometry(Part.LineSegment(V(16, -6.075634, 0), V(65.528544, -19.825005, 0)), False)
sketch6.addGeometry(Part.LineSegment(V(65.528544, -19.825005, 0), V(69.5, -18.851867, 0)), False)
sketch6.addGeometry(Part.LineSegment(V(16, -136, 0), V(23.476935, -136, 0)), False)
sketch6.addGeometry(Part.LineSegment(V(23.476935, -136, 0), V(69.5, -123.223768, 0)), False)
sketch6.addGeometry(Part.LineSegment(V(69.5, -123.223768, 0), V(69.5, -121.148133, 0)), False)
sketch6.addGeometry(Part.LineSegment(V(69.5, -121.148133, 0), V(65.528544, -120.174995, 0)), False)
sketch6.addGeometry(Part.LineSegment(V(65.528544, -120.174995, 0), V(16, -133.924366, 0)), False)
sketch6.addGeometry(Part.LineSegment(V(16, -133.924366, 0), V(16, -136, 0)), False)
sketch6.addConstraint(Sketcher.Constraint("Coincident", 0, 2, 1, 1))
sketch6.addConstraint(Sketcher.Constraint("Coincident", 1, 2, 2, 1))
sketch6.addConstraint(Sketcher.Constraint("Coincident", 2, 2, 3, 1))
sketch6.addConstraint(Sketcher.Constraint("Coincident", 3, 2, 4, 1))
sketch6.addConstraint(Sketcher.Constraint("Coincident", 4, 2, 5, 1))
sketch6.addConstraint(Sketcher.Constraint("Coincident", 5, 2, 0, 1))
sketch6.addConstraint(Sketcher.Constraint("Coincident", 6, 2, 7, 1))
sketch6.addConstraint(Sketcher.Constraint("Coincident", 7, 2, 8, 1))
sketch6.addConstraint(Sketcher.Constraint("Coincident", 8, 2, 9, 1))
sketch6.addConstraint(Sketcher.Constraint("Coincident", 9, 2, 10, 1))
sketch6.addConstraint(Sketcher.Constraint("Coincident", 10, 2, 11, 1))
sketch6.addConstraint(Sketcher.Constraint("Coincident", 11, 2, 6, 1))
sketch6.addConstraint(Sketcher.Constraint("Vertical", 0))
sketch6.addConstraint(Sketcher.Constraint("Horizontal", 2))
sketch6.addConstraint(Sketcher.Constraint("Vertical", 3))
sketch6.addConstraint(Sketcher.Constraint("Horizontal", 6))
sketch6.addConstraint(Sketcher.Constraint("Vertical", 8))
sketch6.addConstraint(Sketcher.Constraint("Vertical", 11))
sketch6.addConstraint(Sketcher.Constraint("Parallel", 1, 4))
sketch6.addConstraint(Sketcher.Constraint("Parallel", 7, 10))
sketch6.addConstraint(Sketcher.Constraint("Vertical", 1, 2, 6, 2))
sketch6.addConstraint(Sketcher.Constraint("Vertical", 5, 2, 7, 2))
sketch6.addConstraint(Sketcher.Constraint("Vertical", 4, 2, 9, 2))
sketch6.addConstraint(Sketcher.Constraint("Vertical", 3, 2, 10, 2))
sketch6.addConstraint(Sketcher.Constraint("Equal", 0, 3))
sketch6.addConstraint(Sketcher.Constraint("Equal", 3, 8))
sketch6.addConstraint(Sketcher.Constraint("Equal", 8, 11))
sketch6.addConstraint(Sketcher.Constraint("Equal", 1, 7))
sketch6.addConstraint(Sketcher.Constraint("DistanceY", 1, 2, -1, 1, Q("4 mm")))
sketch6.addConstraint(Sketcher.Constraint("DistanceX", -1, 1, 2, 2, Q("16 mm")))
sketch6.addConstraint(Sketcher.Constraint("DistanceY", 6, 2, -1, 1, Q("136 mm")))
sketch6.addConstraint(Sketcher.Constraint("DistanceX", -1, 1, 0, 2, Q("69.5 mm")))
sketch6.addConstraint(Sketcher.Constraint("DistanceY", 7, 2, 5, 2, Q("104.371901 mm")))
sketch6.addConstraint(Sketcher.Constraint("Distance", 1, Q("47.763528 mm")))
sketch6.addConstraint(Sketcher.Constraint("DistanceX", 2, 2, 2, 1, Q("7.476935 mm")))
sketch6.addConstraint(Sketcher.Constraint("DistanceX", 1, 2, 4, 2, Q("42.051609 mm")))
pad3 = body.newObject("PartDesign::Pad", "Pad002")
pad3.Profile = sketch6
pad3.setExpression("Length", "Params.pad3_length")
pad3.Reversed = True
doc.recompute()

fillet3 = body.newObject("PartDesign::Fillet", "Fillet002")
fillet3.Base = (pad3, edges_at(pad3, [
    (0.75, 16, -31.961),
    (0.75, 16, -36.079),
    (0.75, 16, -108.039),
    (0.75, 16, -103.921),
    (0.75, 69.5, -4),
    (0.75, 69.5, -136),
    (0.75, 69.5, -16.776),
    (0.75, 23.477, -4),
    (0.75, 16, -6.076),
    (0.75, 65.529, -19.825),
    (0.75, 23.477, -136),
    (0.75, 69.5, -123.224),
    (0.75, 65.529, -120.175),
    (0.75, 16, -133.924),
]))
fillet3.setExpression("Radius", "Params.fillet3_radius")

doc.recompute()
